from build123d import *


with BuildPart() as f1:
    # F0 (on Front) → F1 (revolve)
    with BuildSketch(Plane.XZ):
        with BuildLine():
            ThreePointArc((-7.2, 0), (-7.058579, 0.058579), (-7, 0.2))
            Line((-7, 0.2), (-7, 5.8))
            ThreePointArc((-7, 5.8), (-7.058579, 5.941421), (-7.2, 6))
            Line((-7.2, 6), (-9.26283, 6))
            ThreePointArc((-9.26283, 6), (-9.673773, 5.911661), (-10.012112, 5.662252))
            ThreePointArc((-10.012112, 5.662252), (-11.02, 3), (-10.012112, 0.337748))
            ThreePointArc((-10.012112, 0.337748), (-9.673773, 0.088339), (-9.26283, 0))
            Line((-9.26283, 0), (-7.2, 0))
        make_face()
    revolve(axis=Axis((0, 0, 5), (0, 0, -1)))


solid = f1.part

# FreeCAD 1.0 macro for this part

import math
import FreeCAD as App
import Part
import Sketcher
Q = App.Units.Quantity

doc = App.newDocument("Part")
body = doc.addObject("PartDesign::Body", "Body")

sketch1 = doc.addObject("Sketcher::SketchObject", "Sketch")
body.addObject(sketch1)
sketch1.AttachmentSupport = (doc.XZ_Plane, [""])
sketch1.MapMode = "FlatFace"
sketch1.addGeometry([
    Part.ArcOfCircle(Part.Circle(App.Vector(-7.200001, 0.200001, 0), App.Vector(0, 0, 1), 0.200001), math.radians(-89.999652), math.radians(-0.000348)),
    Part.LineSegment(App.Vector(-7, 0.2, 0), App.Vector(-7, 5.8, 0)),
    Part.ArcOfCircle(Part.Circle(App.Vector(-7.200001, 5.799999, 0), App.Vector(0, 0, 1), 0.200001), math.radians(0.000348), math.radians(89.999652)),
    Part.LineSegment(App.Vector(-7.2, 6, 0), App.Vector(-9.26283, 6, 0)),
    Part.ArcOfCircle(Part.Circle(App.Vector(-9.262829, 4.999996, 0), App.Vector(0, 0, 1), 1.000004), math.radians(90.000052), math.radians(138.528051)),
    Part.ArcOfCircle(Part.Circle(App.Vector(-6.999998, 3, 0), App.Vector(0, 0, 1), 4.020002), math.radians(138.528197), math.radians(221.471803)),
    Part.ArcOfCircle(Part.Circle(App.Vector(-9.262829, 1.000004, 0), App.Vector(0, 0, 1), 1.000004), math.radians(-138.528051), math.radians(-90.000052)),
    Part.LineSegment(App.Vector(-9.26283, 0, 0), App.Vector(-7.2, 0, 0)),
], False)
sketch1.addConstraint([
    Sketcher.Constraint("Coincident", 0, 2, 1, 1),
    Sketcher.Constraint("Coincident", 1, 2, 2, 1),
    Sketcher.Constraint("Coincident", 2, 2, 3, 1),
    Sketcher.Constraint("Tangent", 3, 2, 4, 1),
    Sketcher.Constraint("Coincident", 4, 2, 5, 1),
    Sketcher.Constraint("Coincident", 5, 2, 6, 1),
    Sketcher.Constraint("Tangent", 6, 2, 7, 1),
    Sketcher.Constraint("Coincident", 7, 2, 0, 1),
    Sketcher.Constraint("Vertical", 1),
    Sketcher.Constraint("Horizontal", 3),
    Sketcher.Constraint("Horizontal", 7),
    Sketcher.Constraint("Equal", 0, 2),
    Sketcher.Constraint("Equal", 4, 6),
    Sketcher.Constraint("PointOnObject", 6, 2, -1),
    Sketcher.Constraint("Horizontal", 2, 3, 1, 2),
    Sketcher.Constraint("Vertical", 4, 3, 6, 3),
    Sketcher.Constraint("Vertical", 0, 3, 2, 2),
    Sketcher.Constraint("Vertical", 4, 2, 5, 2),
    Sketcher.Constraint("Vertical", 2, 2, 7, 2),
    Sketcher.Constraint("Radius", 0, Q("0.200001 mm")),
    Sketcher.Constraint("DistanceY", 1, 1, 1, 2, Q("5.6 mm")),
    Sketcher.Constraint("DistanceY", -1, 1, 5, 3, Q("3 mm")),
    Sketcher.Constraint("DistanceX", 0, 2, -1, 1, Q("7 mm")),
    Sketcher.Constraint("Radius", 4, Q("1.000004 mm")),
    Sketcher.Constraint("Radius", 5, Q("4.020002 mm")),
    Sketcher.Constraint("DistanceX", 3, 2, 3, 1, Q("2.06283 mm")),
    Sketcher.Constraint("DistanceX", 4, 2, -1, 1, Q("10.012112 mm")),
])
revolution = doc.addObject("PartDesign::Revolution", "Revolution")
body.addObject(revolution)
revolution.Profile = sketch1
revolution.ReferenceAxis = (sketch1, ["V_Axis"])
revolution.Angle = 360

doc.recompute()
